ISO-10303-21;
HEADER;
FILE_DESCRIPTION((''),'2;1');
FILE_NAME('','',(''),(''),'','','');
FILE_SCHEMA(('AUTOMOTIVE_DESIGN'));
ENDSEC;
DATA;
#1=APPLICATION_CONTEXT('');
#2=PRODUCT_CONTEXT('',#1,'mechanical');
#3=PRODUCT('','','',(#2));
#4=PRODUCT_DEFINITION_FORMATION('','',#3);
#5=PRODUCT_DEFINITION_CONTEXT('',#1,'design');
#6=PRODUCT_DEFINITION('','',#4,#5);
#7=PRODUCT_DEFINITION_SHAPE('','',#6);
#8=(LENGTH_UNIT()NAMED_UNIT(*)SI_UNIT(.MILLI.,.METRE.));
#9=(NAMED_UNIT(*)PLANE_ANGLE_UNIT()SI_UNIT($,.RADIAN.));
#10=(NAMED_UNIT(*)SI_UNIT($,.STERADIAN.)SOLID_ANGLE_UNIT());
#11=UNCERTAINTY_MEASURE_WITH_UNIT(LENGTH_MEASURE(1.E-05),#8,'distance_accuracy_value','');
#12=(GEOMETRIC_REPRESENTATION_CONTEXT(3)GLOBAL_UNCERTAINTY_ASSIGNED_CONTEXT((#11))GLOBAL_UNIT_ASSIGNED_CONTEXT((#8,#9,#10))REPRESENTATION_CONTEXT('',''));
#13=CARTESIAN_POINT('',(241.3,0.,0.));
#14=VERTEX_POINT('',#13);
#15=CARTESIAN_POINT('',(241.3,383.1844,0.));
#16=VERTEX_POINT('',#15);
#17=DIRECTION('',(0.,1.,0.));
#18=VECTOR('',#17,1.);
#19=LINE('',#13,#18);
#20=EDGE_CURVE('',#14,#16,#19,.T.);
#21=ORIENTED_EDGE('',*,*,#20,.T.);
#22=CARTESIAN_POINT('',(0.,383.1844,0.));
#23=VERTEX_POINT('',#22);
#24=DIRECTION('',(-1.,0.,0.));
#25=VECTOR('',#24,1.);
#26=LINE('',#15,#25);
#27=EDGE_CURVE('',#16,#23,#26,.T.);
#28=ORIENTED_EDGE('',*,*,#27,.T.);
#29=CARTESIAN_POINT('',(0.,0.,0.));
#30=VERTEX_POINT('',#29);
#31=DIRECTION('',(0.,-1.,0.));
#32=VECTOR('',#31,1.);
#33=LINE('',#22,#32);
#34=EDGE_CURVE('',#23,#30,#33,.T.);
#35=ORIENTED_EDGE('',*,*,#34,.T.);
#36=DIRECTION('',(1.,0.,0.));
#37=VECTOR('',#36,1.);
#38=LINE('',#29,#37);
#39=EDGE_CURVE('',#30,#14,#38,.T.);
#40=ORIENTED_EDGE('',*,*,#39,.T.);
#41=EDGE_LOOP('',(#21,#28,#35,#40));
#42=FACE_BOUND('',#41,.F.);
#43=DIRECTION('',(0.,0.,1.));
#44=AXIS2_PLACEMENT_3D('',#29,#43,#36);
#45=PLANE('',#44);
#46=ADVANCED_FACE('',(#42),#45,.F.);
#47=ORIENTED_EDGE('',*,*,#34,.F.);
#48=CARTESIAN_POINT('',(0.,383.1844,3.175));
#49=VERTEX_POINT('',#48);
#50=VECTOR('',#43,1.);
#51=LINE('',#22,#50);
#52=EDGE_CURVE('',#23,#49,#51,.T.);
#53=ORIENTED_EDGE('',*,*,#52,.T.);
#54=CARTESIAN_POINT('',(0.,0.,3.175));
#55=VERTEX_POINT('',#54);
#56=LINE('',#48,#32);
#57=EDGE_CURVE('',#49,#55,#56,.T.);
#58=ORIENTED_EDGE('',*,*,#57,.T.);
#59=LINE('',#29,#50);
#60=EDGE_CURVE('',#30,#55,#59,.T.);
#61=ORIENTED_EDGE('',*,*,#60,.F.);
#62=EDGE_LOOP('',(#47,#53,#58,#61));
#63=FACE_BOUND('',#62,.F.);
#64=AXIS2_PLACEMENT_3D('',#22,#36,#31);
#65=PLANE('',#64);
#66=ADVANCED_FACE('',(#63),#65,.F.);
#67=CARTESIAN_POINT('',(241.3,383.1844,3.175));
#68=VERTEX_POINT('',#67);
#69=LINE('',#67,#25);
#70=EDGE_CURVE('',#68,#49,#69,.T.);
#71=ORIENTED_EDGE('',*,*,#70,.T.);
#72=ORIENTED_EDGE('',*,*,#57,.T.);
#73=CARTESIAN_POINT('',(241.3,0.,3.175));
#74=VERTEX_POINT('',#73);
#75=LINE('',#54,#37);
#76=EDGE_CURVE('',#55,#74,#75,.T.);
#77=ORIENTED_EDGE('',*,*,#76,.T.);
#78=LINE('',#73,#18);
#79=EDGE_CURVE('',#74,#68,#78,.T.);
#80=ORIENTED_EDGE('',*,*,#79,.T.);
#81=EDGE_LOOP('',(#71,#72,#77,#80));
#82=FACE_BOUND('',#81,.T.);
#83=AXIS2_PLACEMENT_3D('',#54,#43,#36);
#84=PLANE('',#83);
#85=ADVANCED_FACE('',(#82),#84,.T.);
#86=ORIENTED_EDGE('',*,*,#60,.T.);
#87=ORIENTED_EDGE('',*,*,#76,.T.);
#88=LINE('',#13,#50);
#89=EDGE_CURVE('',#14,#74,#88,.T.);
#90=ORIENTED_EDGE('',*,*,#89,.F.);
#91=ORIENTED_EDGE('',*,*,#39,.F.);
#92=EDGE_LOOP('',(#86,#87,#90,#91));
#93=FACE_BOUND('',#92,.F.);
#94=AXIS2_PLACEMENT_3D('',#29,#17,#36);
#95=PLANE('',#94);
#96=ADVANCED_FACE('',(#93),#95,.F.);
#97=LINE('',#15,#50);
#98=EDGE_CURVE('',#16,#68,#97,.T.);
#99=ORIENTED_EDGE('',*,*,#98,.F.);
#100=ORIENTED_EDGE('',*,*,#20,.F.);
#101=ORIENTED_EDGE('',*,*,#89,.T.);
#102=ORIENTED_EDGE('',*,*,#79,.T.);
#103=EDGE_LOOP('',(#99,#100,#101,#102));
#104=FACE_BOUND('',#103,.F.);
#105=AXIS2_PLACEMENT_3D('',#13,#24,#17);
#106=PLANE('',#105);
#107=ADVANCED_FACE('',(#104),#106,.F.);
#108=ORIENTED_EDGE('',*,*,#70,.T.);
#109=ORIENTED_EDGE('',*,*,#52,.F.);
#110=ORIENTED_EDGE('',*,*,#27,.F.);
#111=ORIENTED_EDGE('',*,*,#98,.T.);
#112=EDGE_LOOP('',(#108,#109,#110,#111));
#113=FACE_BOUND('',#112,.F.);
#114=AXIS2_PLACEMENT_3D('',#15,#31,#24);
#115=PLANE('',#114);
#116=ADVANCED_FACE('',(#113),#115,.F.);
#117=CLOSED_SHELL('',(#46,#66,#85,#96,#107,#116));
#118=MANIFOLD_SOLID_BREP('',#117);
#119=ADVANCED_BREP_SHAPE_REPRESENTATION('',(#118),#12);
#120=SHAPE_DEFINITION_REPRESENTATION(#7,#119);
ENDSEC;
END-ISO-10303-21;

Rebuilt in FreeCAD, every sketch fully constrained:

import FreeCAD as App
import Part
import Sketcher
from FreeCAD import Vector
Q = App.Units.Quantity


def add_polygon(sketch, points):
    """Adds a closed chain of lines whose ends are joined by coincident constraints."""
    first, n = sketch.GeometryCount, len(points)
    for a, b in zip(points, points[1:] + points[:1]):
        sketch.addGeometry(Part.LineSegment(App.Vector(*a, 0), App.Vector(*b, 0)), False)
    for i in range(n):
        sketch.addConstraint(Sketcher.Constraint("Coincident", first + i, 2, first + (i + 1) % n, 1))

doc = App.newDocument("Part")
body = doc.addObject("PartDesign::Body", "Body")

sketch1 = doc.addObject("Sketcher::SketchObject", "Sketch")
body.addObject(sketch1)
sketch1.AttachmentSupport = (doc.XY_Plane, [""])
sketch1.MapMode = "FlatFace"
add_polygon(sketch1, [(0, 383), (0, 0), (241, 0), (241, 383)])
sketch1.addConstraint(Sketcher.Constraint("Vertical", 0))
sketch1.addConstraint(Sketcher.Constraint("Horizontal", 1))
sketch1.addConstraint(Sketcher.Constraint("Vertical", 2))
sketch1.addConstraint(Sketcher.Constraint("Horizontal", 3))
sketch1.addConstraint(Sketcher.Constraint("Coincident", 0, 2, -1, 1))
sketch1.addConstraint(Sketcher.Constraint("DistanceX", 1, 1, 1, 2, Q("9.5 in")))
sketch1.addConstraint(Sketcher.Constraint("DistanceY", 0, 2, 0, 1, Q("15.086 in")))
pad1 = doc.addObject("PartDesign::Pad", "Pad")
body.addObject(pad1)
pad1.Profile = sketch1
pad1.Length = Q("0.125 in")

doc.recompute()
